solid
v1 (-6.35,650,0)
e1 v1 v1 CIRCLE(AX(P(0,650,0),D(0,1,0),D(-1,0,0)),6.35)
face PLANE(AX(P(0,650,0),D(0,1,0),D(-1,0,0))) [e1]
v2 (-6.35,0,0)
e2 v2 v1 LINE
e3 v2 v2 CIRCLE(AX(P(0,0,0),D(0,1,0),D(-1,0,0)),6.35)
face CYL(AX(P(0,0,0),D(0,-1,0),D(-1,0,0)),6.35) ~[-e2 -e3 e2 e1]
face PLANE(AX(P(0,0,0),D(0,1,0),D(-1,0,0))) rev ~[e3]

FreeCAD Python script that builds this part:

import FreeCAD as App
import Part
import Sketcher
from FreeCAD import Vector

doc = App.newDocument("Part")
body = doc.addObject("PartDesign::Body", "Body")

# Sketch on XZ plane
sketch1 = body.newObject("Sketcher::SketchObject", "Sketch")
sketch1.AttachmentSupport = (doc.getObject("XZ_Plane"), [""])
sketch1.MapMode = "FlatFace"
sketch1.addGeometry(Part.Circle(Vector(0, 0, 0), Vector(0, 0, 1), 6), False)
sketch1.addConstraint([
    Sketcher.Constraint("Coincident", 0, 3, -1, 1),
    Sketcher.Constraint("Diameter", 0, 12.7),
])
pad1 = body.newObject("PartDesign::Pad", "Pad")
pad1.Profile = sketch1
pad1.Length = 650
pad1.Reversed = True

doc.recompute()
